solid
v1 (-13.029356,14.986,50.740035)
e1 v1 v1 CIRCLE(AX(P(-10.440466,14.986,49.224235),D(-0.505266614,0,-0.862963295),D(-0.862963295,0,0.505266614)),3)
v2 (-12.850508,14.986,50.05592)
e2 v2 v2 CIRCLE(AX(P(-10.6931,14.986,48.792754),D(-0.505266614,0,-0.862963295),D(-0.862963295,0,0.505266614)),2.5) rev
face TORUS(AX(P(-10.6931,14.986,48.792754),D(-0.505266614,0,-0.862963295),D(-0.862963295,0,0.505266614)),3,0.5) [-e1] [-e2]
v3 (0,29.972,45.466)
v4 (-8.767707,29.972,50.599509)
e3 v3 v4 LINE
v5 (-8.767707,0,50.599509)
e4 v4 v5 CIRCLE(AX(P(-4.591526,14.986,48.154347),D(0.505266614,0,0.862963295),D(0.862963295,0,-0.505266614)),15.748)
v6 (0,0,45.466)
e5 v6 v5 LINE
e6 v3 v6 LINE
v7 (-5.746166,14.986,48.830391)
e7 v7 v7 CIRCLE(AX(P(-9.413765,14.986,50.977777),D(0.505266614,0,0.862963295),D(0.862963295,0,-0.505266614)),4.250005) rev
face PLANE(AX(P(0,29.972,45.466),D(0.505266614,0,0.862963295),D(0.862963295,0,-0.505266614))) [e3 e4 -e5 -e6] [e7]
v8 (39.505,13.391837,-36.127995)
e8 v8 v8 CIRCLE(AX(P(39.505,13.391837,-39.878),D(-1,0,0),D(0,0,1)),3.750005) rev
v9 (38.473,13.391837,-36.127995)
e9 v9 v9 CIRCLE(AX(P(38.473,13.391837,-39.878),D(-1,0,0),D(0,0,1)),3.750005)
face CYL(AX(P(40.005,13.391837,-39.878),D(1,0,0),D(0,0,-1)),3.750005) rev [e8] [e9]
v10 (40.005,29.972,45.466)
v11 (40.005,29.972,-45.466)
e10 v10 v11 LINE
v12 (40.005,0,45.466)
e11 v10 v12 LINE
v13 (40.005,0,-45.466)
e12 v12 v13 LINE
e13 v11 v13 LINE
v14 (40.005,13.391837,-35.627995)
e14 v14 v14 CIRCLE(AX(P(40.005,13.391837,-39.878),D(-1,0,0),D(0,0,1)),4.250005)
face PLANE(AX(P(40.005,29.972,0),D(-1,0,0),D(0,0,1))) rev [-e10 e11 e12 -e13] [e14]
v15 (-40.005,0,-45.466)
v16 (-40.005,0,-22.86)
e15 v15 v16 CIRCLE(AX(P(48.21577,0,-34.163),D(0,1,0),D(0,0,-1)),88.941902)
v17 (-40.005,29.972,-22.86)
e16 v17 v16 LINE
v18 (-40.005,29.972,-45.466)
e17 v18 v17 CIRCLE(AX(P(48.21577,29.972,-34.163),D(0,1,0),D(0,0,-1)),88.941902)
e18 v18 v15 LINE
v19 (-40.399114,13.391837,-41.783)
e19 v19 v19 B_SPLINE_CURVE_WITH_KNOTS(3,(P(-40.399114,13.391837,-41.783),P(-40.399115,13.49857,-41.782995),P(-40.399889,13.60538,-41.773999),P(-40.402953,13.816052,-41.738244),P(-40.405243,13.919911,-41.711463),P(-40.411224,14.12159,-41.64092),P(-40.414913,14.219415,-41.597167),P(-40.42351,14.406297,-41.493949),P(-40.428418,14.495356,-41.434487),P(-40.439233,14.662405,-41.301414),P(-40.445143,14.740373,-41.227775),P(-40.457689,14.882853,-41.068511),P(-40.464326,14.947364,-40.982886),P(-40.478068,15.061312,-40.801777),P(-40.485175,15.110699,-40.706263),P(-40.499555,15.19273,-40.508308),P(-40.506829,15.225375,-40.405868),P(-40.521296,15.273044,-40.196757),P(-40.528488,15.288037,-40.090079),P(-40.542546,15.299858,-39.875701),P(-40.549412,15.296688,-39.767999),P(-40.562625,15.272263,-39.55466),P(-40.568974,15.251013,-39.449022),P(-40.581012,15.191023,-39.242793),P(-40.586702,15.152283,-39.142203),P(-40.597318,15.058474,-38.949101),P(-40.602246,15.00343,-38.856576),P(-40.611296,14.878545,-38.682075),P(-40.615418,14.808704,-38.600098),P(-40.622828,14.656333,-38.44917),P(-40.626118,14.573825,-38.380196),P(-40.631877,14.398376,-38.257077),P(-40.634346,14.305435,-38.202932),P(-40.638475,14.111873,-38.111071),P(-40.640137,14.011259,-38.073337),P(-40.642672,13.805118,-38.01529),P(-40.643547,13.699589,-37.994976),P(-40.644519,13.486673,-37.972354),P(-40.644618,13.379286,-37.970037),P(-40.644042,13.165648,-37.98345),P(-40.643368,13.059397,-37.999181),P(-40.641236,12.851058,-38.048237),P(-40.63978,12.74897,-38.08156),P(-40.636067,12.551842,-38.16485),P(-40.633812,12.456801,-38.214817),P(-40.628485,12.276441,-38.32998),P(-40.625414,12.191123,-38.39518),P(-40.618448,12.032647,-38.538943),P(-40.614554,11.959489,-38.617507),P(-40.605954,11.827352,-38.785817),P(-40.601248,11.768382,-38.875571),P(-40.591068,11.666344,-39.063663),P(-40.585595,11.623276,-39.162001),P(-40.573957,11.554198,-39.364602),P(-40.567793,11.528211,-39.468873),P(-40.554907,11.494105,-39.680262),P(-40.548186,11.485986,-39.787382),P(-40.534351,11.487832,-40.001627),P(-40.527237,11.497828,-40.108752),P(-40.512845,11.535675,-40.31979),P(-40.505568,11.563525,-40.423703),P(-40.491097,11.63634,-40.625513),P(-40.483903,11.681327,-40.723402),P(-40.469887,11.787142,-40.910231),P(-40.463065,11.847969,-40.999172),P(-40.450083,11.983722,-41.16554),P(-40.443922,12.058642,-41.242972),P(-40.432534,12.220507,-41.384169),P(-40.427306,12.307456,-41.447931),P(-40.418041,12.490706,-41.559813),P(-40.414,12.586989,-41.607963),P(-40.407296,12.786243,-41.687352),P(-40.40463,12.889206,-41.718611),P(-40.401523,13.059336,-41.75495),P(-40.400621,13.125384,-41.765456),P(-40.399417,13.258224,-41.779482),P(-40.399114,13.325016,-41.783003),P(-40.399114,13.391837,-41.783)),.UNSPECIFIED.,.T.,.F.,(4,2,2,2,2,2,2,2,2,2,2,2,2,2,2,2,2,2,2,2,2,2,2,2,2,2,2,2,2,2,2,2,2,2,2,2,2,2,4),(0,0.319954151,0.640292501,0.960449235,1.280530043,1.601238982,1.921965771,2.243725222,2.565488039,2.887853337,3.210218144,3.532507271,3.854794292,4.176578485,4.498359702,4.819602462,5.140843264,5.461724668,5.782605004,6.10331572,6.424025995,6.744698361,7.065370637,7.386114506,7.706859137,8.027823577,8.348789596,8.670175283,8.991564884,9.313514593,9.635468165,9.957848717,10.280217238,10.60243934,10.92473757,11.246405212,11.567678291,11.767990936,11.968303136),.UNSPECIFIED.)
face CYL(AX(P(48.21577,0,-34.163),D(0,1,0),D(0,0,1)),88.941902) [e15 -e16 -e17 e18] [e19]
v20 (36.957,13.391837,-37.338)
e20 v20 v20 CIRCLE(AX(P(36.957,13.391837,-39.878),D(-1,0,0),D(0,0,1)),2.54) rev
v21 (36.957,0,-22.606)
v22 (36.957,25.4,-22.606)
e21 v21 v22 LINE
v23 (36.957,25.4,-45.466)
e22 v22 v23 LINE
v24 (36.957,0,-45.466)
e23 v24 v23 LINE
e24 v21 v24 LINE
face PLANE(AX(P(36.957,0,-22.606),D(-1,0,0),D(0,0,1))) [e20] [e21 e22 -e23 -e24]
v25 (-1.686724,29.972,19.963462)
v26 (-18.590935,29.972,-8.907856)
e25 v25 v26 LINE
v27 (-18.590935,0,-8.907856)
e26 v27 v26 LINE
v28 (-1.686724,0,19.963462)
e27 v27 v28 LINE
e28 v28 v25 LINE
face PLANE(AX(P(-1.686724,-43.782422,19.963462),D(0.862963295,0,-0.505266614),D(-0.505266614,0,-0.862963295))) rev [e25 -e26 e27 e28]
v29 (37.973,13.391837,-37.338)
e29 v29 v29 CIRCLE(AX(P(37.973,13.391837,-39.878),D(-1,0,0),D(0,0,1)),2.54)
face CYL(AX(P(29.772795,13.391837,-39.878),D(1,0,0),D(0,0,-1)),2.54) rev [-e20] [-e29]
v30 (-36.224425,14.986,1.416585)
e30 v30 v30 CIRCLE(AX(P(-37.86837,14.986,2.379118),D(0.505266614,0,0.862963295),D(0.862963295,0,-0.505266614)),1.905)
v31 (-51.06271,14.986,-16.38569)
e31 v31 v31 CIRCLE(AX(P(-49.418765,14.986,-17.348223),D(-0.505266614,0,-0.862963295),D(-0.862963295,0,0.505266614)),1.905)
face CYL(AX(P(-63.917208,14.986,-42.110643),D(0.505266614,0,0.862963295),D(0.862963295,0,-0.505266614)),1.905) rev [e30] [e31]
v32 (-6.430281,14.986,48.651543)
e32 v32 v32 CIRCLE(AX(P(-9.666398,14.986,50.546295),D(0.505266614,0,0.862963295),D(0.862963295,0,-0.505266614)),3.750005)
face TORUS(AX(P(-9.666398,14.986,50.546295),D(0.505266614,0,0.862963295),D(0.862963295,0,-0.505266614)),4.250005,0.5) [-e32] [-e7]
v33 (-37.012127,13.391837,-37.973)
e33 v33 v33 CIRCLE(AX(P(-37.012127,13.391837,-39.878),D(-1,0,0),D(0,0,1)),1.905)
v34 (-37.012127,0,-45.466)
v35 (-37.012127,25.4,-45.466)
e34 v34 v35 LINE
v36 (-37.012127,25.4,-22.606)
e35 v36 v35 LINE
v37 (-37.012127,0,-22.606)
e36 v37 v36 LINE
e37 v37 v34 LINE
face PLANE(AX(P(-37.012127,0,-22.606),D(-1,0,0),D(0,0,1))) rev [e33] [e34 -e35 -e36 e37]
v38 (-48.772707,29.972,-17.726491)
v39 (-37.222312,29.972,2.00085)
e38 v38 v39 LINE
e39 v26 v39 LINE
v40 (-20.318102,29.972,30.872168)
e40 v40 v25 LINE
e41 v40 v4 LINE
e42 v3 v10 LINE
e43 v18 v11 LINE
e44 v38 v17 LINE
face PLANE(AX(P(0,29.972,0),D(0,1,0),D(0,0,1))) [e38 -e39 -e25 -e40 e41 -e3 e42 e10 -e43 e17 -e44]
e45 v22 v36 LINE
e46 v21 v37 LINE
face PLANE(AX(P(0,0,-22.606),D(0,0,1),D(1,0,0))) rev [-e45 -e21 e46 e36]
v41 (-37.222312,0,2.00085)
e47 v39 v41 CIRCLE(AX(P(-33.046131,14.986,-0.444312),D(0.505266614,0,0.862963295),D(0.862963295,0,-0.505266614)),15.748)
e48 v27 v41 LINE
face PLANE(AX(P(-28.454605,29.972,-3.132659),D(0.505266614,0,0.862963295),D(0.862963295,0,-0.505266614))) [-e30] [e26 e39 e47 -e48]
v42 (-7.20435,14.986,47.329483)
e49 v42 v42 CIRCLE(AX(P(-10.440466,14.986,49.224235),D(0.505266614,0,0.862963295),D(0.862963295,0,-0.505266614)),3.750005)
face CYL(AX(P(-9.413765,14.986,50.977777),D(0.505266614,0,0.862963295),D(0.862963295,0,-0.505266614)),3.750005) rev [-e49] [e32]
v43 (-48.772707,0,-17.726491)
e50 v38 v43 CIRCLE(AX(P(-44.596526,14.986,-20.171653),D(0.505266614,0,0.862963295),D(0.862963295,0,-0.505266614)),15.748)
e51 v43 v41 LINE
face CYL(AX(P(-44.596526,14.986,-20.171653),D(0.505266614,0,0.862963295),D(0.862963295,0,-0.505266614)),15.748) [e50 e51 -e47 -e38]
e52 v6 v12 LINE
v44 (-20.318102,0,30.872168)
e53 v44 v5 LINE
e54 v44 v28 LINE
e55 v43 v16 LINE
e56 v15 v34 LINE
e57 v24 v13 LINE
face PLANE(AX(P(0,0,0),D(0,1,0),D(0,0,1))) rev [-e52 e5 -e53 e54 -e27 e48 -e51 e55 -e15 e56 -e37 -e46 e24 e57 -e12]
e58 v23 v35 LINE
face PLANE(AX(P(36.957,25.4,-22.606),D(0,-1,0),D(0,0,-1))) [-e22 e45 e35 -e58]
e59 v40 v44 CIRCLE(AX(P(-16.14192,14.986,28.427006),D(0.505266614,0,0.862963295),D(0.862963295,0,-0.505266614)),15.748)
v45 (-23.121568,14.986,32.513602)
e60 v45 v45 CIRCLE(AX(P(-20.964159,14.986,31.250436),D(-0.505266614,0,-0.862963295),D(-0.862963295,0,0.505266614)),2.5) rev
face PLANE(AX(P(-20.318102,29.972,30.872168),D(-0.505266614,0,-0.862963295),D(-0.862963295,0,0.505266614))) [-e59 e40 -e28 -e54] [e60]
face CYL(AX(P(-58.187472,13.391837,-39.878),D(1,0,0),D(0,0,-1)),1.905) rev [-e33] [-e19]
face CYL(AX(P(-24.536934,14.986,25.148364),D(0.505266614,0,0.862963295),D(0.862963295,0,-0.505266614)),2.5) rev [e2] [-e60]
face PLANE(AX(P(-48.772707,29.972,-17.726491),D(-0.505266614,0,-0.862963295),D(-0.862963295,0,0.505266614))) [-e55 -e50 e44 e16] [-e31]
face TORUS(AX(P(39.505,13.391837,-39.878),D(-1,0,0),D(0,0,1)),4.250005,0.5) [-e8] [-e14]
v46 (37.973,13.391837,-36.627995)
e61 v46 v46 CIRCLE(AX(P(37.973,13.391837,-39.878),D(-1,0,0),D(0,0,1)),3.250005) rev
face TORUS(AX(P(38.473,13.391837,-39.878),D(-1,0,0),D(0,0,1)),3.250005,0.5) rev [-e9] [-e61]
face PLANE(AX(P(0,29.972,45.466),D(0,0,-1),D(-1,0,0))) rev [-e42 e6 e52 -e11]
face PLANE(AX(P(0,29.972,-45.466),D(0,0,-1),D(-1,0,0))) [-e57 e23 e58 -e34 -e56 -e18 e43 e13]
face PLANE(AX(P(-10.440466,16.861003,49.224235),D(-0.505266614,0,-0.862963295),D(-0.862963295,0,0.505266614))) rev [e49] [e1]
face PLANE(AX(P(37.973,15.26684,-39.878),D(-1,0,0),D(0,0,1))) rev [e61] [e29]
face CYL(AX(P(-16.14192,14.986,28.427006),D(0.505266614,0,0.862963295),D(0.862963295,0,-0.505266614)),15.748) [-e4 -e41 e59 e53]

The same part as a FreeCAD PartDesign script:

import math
import FreeCAD as App
import Part
import Sketcher

V = App.Vector
Q = App.Units.Quantity


def edges_at(feature, points):
    """Names of the edges that pass closest to the given points."""
    edges = feature.Shape.Edges
    near = lambda p: min(range(len(edges)), key=lambda i: edges[i].distToShape(Part.Vertex(*p))[0])
    return sorted({f"Edge{near(p) + 1}" for p in points})


def add_polygon(sketch, points):
    """Adds a closed chain of lines whose ends are joined by coincident constraints."""
    first, n = sketch.GeometryCount, len(points)
    for a, b in zip(points, points[1:] + points[:1]):
        sketch.addGeometry(Part.LineSegment(App.Vector(*a, 0), App.Vector(*b, 0)), False)
    for i in range(n):
        sketch.addConstraint(Sketcher.Constraint("Coincident", first + i, 2, first + (i + 1) % n, 1))

doc = App.newDocument("Part")
body = doc.addObject("PartDesign::Body", "Body")

sketch1 = body.newObject("Sketcher::SketchObject", "Sketch")
sketch1.AttachmentSupport = (doc.getObject("XZ_Plane"), [""])
sketch1.MapMode = "FlatFace"
add_polygon(sketch1, [(-40, -45), (-40, -23), (0, 45), (40, 45), (40, -45)])
sketch1.addConstraint([
    Sketcher.Constraint("Vertical", 0),
    Sketcher.Constraint("Horizontal", 2),
    Sketcher.Constraint("Vertical", 3),
    Sketcher.Constraint("Horizontal", 4),
    Sketcher.Constraint("Symmetric", 2, 2, 4, 2, -1, 1),
    Sketcher.Constraint("PointOnObject", 1, 2, -2),
    Sketcher.Constraint("DistanceX", 4, 2, 4, 1, Q("3.15 in")),
    Sketcher.Constraint("DistanceY", 0, 1, 0, 2, Q("0.89 in")),
    Sketcher.Constraint("DistanceY", 3, 2, 3, 1, Q("3.58 in")),
])
pad1 = body.newObject("PartDesign::Pad", "Pad")
pad1.Profile = sketch1
pad1.Length = Q("1.18 in")
pad1.Reversed = True

sketch2 = body.newObject("Sketcher::SketchObject", "Sketch001")
sketch2.AttachmentSupport = (doc.getObject("XZ_Plane"), [""])
sketch2.MapMode = "FlatFace"
add_polygon(sketch2, [(-28, -3), (-40, -23), (-49, -18), (-37, 2)])
add_polygon(sketch2, [(0, 45), (-12, 26), (-20, 31), (-9, 51)])
sketch2.addConstraint([
    Sketcher.Constraint("PointOnObject", 7, 2, -2),
    Sketcher.Constraint("Perpendicular", 0, 1),
    Sketcher.Constraint("Perpendicular", 1, 2),
    Sketcher.Constraint("Perpendicular", 2, 3),
    Sketcher.Constraint("Perpendicular", 3, 4),
    Sketcher.Constraint("Perpendicular", 4, 5),
    Sketcher.Constraint("Perpendicular", 5, 6),
    Sketcher.Constraint("Perpendicular", 6, 7),
    Sketcher.Constraint("Equal", 2, 4),
    Sketcher.Constraint("Equal", 3, 5),
    Sketcher.Constraint("Distance", 0, Q("0.9 in")),
    Sketcher.Constraint("Distance", 1, Q("0.4 in")),
    Sketcher.Constraint("DistanceY", 0, 2, -1, 1, Q("0.9 in")),
    Sketcher.Constraint("DistanceY", -1, 1, 7, 2, Q("1.79 in")),
    Sketcher.Constraint("DistanceX", 0, 2, -1, 1, Q("1.575 in")),
    Sketcher.Constraint("DistanceX", 5, 2, -1, 1, Q("20.318102 mm")),
])
pad2 = body.newObject("PartDesign::Pad", "Pad001")
pad2.Profile = sketch2
pad2.Length = Q("1.18 in")
pad2.Reversed = True

sketch3 = body.newObject("Sketcher::SketchObject", "Sketch002")
sketch3.Placement = App.Placement(V(19.824383, 0, 33.858787), App.Rotation(V(0.862963295, 0, -0.505266614), V(0, 1, 0), V(0.505266614, 0, 0.862963295), "ZXY"))
sketch3.addGeometry([
    Part.LineSegment(V(-33, 0, 0), V(-33, 30, 0)),
    Part.ArcOfCircle(Part.Circle(V(-28, 15, 0), V(0, 0, 1), 16), math.radians(108), math.radians(252)),
], False)
sketch3.addConstraint([
    Sketcher.Constraint("Coincident", 0, 1, 1, 2),
    Sketcher.Constraint("Coincident", 1, 1, 0, 2),
    Sketcher.Constraint("Vertical", 0),
    Sketcher.Constraint("PointOnObject", 0, 1, -1),
    Sketcher.Constraint("Radius", 1, Q("0.62 in")),
    Sketcher.Constraint("DistanceY", 0, 1, 0, 2, Q("1.18 in")),
    Sketcher.Constraint("DistanceX", 1, 3, -1, 1, Q("28.293102 mm")),
])
pad3 = body.newObject("PartDesign::Pad", "Pad002")
pad3.Profile = sketch3
pad3.Length = Q("0.9 in")
pad3.Reversed = True

sketch4 = body.newObject("Sketcher::SketchObject", "Sketch003")
sketch4.Placement = App.Placement(V(-8.630222, 0, -14.739872), App.Rotation(V(0.862963295, 0, -0.505266614), V(0, 1, 0), V(0.505266614, 0, 0.862963295), "ZXY"))
sketch4.addGeometry([
    Part.LineSegment(V(-33, 0, 0), V(-33, 30, 0)),
    Part.ArcOfCircle(Part.Circle(V(-28, 15, 0), V(0, 0, 1), 16), math.radians(108), math.radians(252)),
], False)
sketch4.addConstraint([
    Sketcher.Constraint("Coincident", 0, 1, 1, 2),
    Sketcher.Constraint("Coincident", 1, 1, 0, 2),
    Sketcher.Constraint("Vertical", 0),
    Sketcher.Constraint("PointOnObject", 0, 1, -1),
    Sketcher.Constraint("Radius", 1, Q("0.62 in")),
    Sketcher.Constraint("DistanceY", 0, 1, 0, 2, Q("1.18 in")),
    Sketcher.Constraint("DistanceX", 1, 3, -1, 1, Q("28.293102 mm")),
])
pad4 = body.newObject("PartDesign::Pad", "Pad003")
pad4.Profile = sketch4
pad4.Length = Q("0.9 in")
pad4.Reversed = True

sketch5 = body.newObject("Sketcher::SketchObject", "Sketch004")
sketch5.Placement = App.Placement(V(21.10776, 0, 36.050714), App.Rotation(V(0.862963295, 0, -0.505266614), V(0, 1, 0), V(0.505266614, 0, 0.862963295), "ZXY"))
sketch5.addGeometry(Part.Circle(V(-33.9, 15, 0), V(0, 0, 1), 1.9), False)
sketch5.addConstraint([
    Sketcher.Constraint("Diameter", 0, Q("0.15 in")),
    Sketcher.Constraint("DistanceY", -1, 1, 0, 3, Q("0.59 in")),
    Sketcher.Constraint("DistanceX", 0, 3, -1, 1, Q("33.881102 mm")),
])
pocket1 = body.newObject("PartDesign::Pocket", "Pocket")
pocket1.Profile = sketch5
pocket1.Type = "ThroughAll"

sketch6 = body.newObject("Sketcher::SketchObject", "Sketch005")
sketch6.AttachmentSupport = (doc.getObject("XZ_Plane"), [""])
sketch6.MapMode = "FlatFace"
sketch6.AttachmentOffset = App.Placement(V(0, 0, -1.18 * 25.4), App.Rotation())
sketch6.addGeometry([
    Part.LineSegment(V(-40, -23, 0), V(-40, -45, 0)),
    Part.ArcOfCircle(Part.Circle(V(48, -34, 0), V(0, 0, 1), 89), math.radians(172.7), math.radians(187.3)),
], False)
sketch6.addConstraint([
    Sketcher.Constraint("Coincident", 0, 1, 1, 1),
    Sketcher.Constraint("Coincident", 1, 2, 0, 2),
    Sketcher.Constraint("Vertical", 0),
    Sketcher.Constraint("DistanceY", 0, 2, 0, 1, Q("0.89 in")),
    Sketcher.Constraint("DistanceY", 0, 1, -1, 1, Q("0.9 in")),
    Sketcher.Constraint("DistanceX", 0, 1, -1, 1, Q("1.575 in")),
    Sketcher.Constraint("Radius", 1, Q("88.941902 mm")),
])
pad5 = body.newObject("PartDesign::Pad", "Pad004")
pad5.Profile = sketch6
pad5.Length = Q("1.18 in")

sketch7 = body.newObject("Sketcher::SketchObject", "Sketch006")
sketch7.Placement = App.Placement(V(19.824383, 0, 33.858787), App.Rotation(V(0.862963295, 0, -0.505266614), V(0, 1, 0), V(0.505266614, 0, 0.862963295), "ZXY"))
sketch7.addGeometry(Part.Circle(V(-33.9, 15, 0), V(0, 0, 1), 1.9), False)
sketch7.addConstraint([
    Sketcher.Constraint("DistanceY", -1, 1, 0, 3, Q("0.59 in")),
    Sketcher.Constraint("Diameter", 0, Q("3.750005 mm")),
    Sketcher.Constraint("DistanceX", 0, 3, -1, 1, Q("33.881102 mm")),
])
doc.recompute()
hole = body.newObject("PartDesign::Hole", "Hole")
hole.Profile = sketch7
hole.ThreadType = "None"
hole.Diameter = 3.750005
hole.DepthType = "ThroughAll"
hole.HoleCutType = "Counterbore"
hole.HoleCutDiameter = 7.50001
hole.HoleCutDepth = Q("0.08 in")

sketch8 = body.newObject("Sketcher::SketchObject", "Sketch007")
sketch8.Placement = App.Placement(V(18.797681, 0, 32.105246), App.Rotation(V(0.862963295, 0, -0.505266614), V(0, 1, 0), V(0.505266614, 0, 0.862963295), "ZXY"))
sketch8.addGeometry(Part.Circle(V(-33.9, 15, 0), V(0, 0, 1), 2.5), False)
sketch8.addConstraint([
    Sketcher.Constraint("Diameter", 0, Q("5 mm")),
    Sketcher.Constraint("DistanceY", -1, 1, 0, 3, Q("0.59 in")),
    Sketcher.Constraint("DistanceX", 0, 3, -1, 1, Q("33.881102 mm")),
])
pocket2 = body.newObject("PartDesign::Pocket", "Pocket001")
pocket2.Profile = sketch8
pocket2.Length = Q("0.82 in")
doc.recompute()

fillet = body.newObject("PartDesign::Fillet", "Fillet")
fillet.Base = (pocket2, edges_at(pocket2, [(-12.65, 14.986, 52.873), (-12.598, 14.986, 50.487)]))
fillet.Radius = 0.5

sketch9 = body.newObject("Sketcher::SketchObject", "Sketch008")
sketch9.AttachmentSupport = (doc.getObject("XY_Plane"), [""])
sketch9.MapMode = "FlatFace"
sketch9.AttachmentOffset = App.Placement(V(0, 0, -1.79 * 25.4), App.Rotation())
add_polygon(sketch9, [(37, 25), (37, 0), (-37, 0), (-37, 25)])
sketch9.addConstraint([
    Sketcher.Constraint("Vertical", 0),
    Sketcher.Constraint("Horizontal", 1),
    Sketcher.Constraint("Vertical", 2),
    Sketcher.Constraint("Horizontal", 3),
    Sketcher.Constraint("PointOnObject", 0, 2, -1),
    Sketcher.Constraint("DistanceY", 0, 2, 0, 1, Q("1 in")),
    Sketcher.Constraint("DistanceX", -1, 1, 0, 2, Q("1.455 in")),
    Sketcher.Constraint("DistanceX", 1, 2, 1, 1, Q("73.969127 mm")),
])
pocket3 = body.newObject("PartDesign::Pocket", "Pocket002")
pocket3.Profile = sketch9
pocket3.Length = Q("0.9 in")
pocket3.Reversed = True

sketch10 = body.newObject("Sketcher::SketchObject", "Sketch009")
sketch10.AttachmentSupport = (doc.getObject("YZ_Plane"), [""])
sketch10.MapMode = "FlatFace"
sketch10.AttachmentOffset = App.Placement(V(0, 0, -40.644491), App.Rotation())
sketch10.addGeometry(Part.Circle(V(13.4, -39.9, 0), V(0, 0, 1), 1.9), False)
sketch10.addConstraint([
    Sketcher.Constraint("Diameter", 0, Q("0.15 in")),
    Sketcher.Constraint("DistanceY", 0, 3, -1, 1, Q("1.57 in")),
    Sketcher.Constraint("DistanceX", -1, 1, 0, 3, Q("13.391837 mm")),
])
pocket4 = body.newObject("PartDesign::Pocket", "Pocket003")
pocket4.Profile = sketch10
pocket4.Length = 80.649491
pocket4.Reversed = True

sketch11 = body.newObject("Sketcher::SketchObject", "Sketch010")
sketch11.AttachmentSupport = (doc.getObject("YZ_Plane"), [""])
sketch11.MapMode = "FlatFace"
sketch11.AttachmentOffset = App.Placement(V(0, 0, 1.575 * 25.4), App.Rotation())
sketch11.addGeometry(Part.Circle(V(13.4, -39.9, 0), V(0, 0, 1), 1.9), False)
sketch11.addConstraint([
    Sketcher.Constraint("DistanceY", 0, 3, -1, 1, Q("1.57 in")),
    Sketcher.Constraint("Diameter", 0, Q("3.750005 mm")),
    Sketcher.Constraint("DistanceX", -1, 1, 0, 3, Q("13.391837 mm")),
])
doc.recompute()
hole2 = body.newObject("PartDesign::Hole", "Hole001")
hole2.Profile = sketch11
hole2.ThreadType = "None"
hole2.Diameter = 3.750005
hole2.DepthType = "ThroughAll"
hole2.HoleCutType = "Counterbore"
hole2.HoleCutDiameter = 7.50001
hole2.HoleCutDepth = Q("0.08 in")

sketch12 = body.newObject("Sketcher::SketchObject", "Sketch011")
sketch12.AttachmentSupport = (doc.getObject("YZ_Plane"), [""])
sketch12.MapMode = "FlatFace"
sketch12.AttachmentOffset = App.Placement(V(0, 0, 1.575 * 25.4), App.Rotation())
sketch12.addGeometry(Part.Circle(V(13.4, -39.9, 0), V(0, 0, 1), 2.5), False)
sketch12.addConstraint([
    Sketcher.Constraint("Diameter", 0, Q("0.2 in")),
    Sketcher.Constraint("DistanceY", 0, 3, -1, 1, Q("1.57 in")),
    Sketcher.Constraint("DistanceX", -1, 1, 0, 3, Q("13.391837 mm")),
])
pocket5 = body.newObject("PartDesign::Pocket", "Pocket004")
pocket5.Profile = sketch12
pocket5.Length = Q("0.12 in")
doc.recompute()

fillet2 = body.newObject("PartDesign::Fillet", "Fillet001")
fillet2.Base = (pocket5, edges_at(pocket5, [(40.005, 13.392, -36.128), (37.973, 13.392, -36.128)]))
fillet2.Radius = 0.5

sketch13 = body.newObject("Sketcher::SketchObject", "Sketch012")
sketch13.AttachmentSupport = (doc.getObject("XZ_Plane"), [""])
sketch13.MapMode = "FlatFace"
sketch13.AttachmentOffset = App.Placement(V(0, 0, -1.18 * 25.4), App.Rotation())
add_polygon(sketch13, [(-12, 26), (-2, 20), (-19, -9), (-28, -3)])
sketch13.addConstraint([
    Sketcher.Constraint("Perpendicular", 0, 1),
    Sketcher.Constraint("Perpendicular", 1, 2),
    Sketcher.Constraint("Perpendicular", 2, 3),
    Sketcher.Constraint("Distance", 0, Q("0.45 in")),
    Sketcher.Constraint("Distance", 1, Q("33.456021 mm")),
    Sketcher.Constraint("DistanceY", -1, 1, 0, 2, Q("19.963462 mm")),
    Sketcher.Constraint("DistanceY", 2, 2, -1, 1, Q("3.132659 mm")),
    Sketcher.Constraint("DistanceX", 0, 2, -1, 1, Q("1.686724 mm")),
])
pocket6 = body.newObject("PartDesign::Pocket", "Pocket005")
pocket6.Profile = sketch13
pocket6.Length = Q("1.18 in")
pocket6.Reversed = True

doc.recompute()
